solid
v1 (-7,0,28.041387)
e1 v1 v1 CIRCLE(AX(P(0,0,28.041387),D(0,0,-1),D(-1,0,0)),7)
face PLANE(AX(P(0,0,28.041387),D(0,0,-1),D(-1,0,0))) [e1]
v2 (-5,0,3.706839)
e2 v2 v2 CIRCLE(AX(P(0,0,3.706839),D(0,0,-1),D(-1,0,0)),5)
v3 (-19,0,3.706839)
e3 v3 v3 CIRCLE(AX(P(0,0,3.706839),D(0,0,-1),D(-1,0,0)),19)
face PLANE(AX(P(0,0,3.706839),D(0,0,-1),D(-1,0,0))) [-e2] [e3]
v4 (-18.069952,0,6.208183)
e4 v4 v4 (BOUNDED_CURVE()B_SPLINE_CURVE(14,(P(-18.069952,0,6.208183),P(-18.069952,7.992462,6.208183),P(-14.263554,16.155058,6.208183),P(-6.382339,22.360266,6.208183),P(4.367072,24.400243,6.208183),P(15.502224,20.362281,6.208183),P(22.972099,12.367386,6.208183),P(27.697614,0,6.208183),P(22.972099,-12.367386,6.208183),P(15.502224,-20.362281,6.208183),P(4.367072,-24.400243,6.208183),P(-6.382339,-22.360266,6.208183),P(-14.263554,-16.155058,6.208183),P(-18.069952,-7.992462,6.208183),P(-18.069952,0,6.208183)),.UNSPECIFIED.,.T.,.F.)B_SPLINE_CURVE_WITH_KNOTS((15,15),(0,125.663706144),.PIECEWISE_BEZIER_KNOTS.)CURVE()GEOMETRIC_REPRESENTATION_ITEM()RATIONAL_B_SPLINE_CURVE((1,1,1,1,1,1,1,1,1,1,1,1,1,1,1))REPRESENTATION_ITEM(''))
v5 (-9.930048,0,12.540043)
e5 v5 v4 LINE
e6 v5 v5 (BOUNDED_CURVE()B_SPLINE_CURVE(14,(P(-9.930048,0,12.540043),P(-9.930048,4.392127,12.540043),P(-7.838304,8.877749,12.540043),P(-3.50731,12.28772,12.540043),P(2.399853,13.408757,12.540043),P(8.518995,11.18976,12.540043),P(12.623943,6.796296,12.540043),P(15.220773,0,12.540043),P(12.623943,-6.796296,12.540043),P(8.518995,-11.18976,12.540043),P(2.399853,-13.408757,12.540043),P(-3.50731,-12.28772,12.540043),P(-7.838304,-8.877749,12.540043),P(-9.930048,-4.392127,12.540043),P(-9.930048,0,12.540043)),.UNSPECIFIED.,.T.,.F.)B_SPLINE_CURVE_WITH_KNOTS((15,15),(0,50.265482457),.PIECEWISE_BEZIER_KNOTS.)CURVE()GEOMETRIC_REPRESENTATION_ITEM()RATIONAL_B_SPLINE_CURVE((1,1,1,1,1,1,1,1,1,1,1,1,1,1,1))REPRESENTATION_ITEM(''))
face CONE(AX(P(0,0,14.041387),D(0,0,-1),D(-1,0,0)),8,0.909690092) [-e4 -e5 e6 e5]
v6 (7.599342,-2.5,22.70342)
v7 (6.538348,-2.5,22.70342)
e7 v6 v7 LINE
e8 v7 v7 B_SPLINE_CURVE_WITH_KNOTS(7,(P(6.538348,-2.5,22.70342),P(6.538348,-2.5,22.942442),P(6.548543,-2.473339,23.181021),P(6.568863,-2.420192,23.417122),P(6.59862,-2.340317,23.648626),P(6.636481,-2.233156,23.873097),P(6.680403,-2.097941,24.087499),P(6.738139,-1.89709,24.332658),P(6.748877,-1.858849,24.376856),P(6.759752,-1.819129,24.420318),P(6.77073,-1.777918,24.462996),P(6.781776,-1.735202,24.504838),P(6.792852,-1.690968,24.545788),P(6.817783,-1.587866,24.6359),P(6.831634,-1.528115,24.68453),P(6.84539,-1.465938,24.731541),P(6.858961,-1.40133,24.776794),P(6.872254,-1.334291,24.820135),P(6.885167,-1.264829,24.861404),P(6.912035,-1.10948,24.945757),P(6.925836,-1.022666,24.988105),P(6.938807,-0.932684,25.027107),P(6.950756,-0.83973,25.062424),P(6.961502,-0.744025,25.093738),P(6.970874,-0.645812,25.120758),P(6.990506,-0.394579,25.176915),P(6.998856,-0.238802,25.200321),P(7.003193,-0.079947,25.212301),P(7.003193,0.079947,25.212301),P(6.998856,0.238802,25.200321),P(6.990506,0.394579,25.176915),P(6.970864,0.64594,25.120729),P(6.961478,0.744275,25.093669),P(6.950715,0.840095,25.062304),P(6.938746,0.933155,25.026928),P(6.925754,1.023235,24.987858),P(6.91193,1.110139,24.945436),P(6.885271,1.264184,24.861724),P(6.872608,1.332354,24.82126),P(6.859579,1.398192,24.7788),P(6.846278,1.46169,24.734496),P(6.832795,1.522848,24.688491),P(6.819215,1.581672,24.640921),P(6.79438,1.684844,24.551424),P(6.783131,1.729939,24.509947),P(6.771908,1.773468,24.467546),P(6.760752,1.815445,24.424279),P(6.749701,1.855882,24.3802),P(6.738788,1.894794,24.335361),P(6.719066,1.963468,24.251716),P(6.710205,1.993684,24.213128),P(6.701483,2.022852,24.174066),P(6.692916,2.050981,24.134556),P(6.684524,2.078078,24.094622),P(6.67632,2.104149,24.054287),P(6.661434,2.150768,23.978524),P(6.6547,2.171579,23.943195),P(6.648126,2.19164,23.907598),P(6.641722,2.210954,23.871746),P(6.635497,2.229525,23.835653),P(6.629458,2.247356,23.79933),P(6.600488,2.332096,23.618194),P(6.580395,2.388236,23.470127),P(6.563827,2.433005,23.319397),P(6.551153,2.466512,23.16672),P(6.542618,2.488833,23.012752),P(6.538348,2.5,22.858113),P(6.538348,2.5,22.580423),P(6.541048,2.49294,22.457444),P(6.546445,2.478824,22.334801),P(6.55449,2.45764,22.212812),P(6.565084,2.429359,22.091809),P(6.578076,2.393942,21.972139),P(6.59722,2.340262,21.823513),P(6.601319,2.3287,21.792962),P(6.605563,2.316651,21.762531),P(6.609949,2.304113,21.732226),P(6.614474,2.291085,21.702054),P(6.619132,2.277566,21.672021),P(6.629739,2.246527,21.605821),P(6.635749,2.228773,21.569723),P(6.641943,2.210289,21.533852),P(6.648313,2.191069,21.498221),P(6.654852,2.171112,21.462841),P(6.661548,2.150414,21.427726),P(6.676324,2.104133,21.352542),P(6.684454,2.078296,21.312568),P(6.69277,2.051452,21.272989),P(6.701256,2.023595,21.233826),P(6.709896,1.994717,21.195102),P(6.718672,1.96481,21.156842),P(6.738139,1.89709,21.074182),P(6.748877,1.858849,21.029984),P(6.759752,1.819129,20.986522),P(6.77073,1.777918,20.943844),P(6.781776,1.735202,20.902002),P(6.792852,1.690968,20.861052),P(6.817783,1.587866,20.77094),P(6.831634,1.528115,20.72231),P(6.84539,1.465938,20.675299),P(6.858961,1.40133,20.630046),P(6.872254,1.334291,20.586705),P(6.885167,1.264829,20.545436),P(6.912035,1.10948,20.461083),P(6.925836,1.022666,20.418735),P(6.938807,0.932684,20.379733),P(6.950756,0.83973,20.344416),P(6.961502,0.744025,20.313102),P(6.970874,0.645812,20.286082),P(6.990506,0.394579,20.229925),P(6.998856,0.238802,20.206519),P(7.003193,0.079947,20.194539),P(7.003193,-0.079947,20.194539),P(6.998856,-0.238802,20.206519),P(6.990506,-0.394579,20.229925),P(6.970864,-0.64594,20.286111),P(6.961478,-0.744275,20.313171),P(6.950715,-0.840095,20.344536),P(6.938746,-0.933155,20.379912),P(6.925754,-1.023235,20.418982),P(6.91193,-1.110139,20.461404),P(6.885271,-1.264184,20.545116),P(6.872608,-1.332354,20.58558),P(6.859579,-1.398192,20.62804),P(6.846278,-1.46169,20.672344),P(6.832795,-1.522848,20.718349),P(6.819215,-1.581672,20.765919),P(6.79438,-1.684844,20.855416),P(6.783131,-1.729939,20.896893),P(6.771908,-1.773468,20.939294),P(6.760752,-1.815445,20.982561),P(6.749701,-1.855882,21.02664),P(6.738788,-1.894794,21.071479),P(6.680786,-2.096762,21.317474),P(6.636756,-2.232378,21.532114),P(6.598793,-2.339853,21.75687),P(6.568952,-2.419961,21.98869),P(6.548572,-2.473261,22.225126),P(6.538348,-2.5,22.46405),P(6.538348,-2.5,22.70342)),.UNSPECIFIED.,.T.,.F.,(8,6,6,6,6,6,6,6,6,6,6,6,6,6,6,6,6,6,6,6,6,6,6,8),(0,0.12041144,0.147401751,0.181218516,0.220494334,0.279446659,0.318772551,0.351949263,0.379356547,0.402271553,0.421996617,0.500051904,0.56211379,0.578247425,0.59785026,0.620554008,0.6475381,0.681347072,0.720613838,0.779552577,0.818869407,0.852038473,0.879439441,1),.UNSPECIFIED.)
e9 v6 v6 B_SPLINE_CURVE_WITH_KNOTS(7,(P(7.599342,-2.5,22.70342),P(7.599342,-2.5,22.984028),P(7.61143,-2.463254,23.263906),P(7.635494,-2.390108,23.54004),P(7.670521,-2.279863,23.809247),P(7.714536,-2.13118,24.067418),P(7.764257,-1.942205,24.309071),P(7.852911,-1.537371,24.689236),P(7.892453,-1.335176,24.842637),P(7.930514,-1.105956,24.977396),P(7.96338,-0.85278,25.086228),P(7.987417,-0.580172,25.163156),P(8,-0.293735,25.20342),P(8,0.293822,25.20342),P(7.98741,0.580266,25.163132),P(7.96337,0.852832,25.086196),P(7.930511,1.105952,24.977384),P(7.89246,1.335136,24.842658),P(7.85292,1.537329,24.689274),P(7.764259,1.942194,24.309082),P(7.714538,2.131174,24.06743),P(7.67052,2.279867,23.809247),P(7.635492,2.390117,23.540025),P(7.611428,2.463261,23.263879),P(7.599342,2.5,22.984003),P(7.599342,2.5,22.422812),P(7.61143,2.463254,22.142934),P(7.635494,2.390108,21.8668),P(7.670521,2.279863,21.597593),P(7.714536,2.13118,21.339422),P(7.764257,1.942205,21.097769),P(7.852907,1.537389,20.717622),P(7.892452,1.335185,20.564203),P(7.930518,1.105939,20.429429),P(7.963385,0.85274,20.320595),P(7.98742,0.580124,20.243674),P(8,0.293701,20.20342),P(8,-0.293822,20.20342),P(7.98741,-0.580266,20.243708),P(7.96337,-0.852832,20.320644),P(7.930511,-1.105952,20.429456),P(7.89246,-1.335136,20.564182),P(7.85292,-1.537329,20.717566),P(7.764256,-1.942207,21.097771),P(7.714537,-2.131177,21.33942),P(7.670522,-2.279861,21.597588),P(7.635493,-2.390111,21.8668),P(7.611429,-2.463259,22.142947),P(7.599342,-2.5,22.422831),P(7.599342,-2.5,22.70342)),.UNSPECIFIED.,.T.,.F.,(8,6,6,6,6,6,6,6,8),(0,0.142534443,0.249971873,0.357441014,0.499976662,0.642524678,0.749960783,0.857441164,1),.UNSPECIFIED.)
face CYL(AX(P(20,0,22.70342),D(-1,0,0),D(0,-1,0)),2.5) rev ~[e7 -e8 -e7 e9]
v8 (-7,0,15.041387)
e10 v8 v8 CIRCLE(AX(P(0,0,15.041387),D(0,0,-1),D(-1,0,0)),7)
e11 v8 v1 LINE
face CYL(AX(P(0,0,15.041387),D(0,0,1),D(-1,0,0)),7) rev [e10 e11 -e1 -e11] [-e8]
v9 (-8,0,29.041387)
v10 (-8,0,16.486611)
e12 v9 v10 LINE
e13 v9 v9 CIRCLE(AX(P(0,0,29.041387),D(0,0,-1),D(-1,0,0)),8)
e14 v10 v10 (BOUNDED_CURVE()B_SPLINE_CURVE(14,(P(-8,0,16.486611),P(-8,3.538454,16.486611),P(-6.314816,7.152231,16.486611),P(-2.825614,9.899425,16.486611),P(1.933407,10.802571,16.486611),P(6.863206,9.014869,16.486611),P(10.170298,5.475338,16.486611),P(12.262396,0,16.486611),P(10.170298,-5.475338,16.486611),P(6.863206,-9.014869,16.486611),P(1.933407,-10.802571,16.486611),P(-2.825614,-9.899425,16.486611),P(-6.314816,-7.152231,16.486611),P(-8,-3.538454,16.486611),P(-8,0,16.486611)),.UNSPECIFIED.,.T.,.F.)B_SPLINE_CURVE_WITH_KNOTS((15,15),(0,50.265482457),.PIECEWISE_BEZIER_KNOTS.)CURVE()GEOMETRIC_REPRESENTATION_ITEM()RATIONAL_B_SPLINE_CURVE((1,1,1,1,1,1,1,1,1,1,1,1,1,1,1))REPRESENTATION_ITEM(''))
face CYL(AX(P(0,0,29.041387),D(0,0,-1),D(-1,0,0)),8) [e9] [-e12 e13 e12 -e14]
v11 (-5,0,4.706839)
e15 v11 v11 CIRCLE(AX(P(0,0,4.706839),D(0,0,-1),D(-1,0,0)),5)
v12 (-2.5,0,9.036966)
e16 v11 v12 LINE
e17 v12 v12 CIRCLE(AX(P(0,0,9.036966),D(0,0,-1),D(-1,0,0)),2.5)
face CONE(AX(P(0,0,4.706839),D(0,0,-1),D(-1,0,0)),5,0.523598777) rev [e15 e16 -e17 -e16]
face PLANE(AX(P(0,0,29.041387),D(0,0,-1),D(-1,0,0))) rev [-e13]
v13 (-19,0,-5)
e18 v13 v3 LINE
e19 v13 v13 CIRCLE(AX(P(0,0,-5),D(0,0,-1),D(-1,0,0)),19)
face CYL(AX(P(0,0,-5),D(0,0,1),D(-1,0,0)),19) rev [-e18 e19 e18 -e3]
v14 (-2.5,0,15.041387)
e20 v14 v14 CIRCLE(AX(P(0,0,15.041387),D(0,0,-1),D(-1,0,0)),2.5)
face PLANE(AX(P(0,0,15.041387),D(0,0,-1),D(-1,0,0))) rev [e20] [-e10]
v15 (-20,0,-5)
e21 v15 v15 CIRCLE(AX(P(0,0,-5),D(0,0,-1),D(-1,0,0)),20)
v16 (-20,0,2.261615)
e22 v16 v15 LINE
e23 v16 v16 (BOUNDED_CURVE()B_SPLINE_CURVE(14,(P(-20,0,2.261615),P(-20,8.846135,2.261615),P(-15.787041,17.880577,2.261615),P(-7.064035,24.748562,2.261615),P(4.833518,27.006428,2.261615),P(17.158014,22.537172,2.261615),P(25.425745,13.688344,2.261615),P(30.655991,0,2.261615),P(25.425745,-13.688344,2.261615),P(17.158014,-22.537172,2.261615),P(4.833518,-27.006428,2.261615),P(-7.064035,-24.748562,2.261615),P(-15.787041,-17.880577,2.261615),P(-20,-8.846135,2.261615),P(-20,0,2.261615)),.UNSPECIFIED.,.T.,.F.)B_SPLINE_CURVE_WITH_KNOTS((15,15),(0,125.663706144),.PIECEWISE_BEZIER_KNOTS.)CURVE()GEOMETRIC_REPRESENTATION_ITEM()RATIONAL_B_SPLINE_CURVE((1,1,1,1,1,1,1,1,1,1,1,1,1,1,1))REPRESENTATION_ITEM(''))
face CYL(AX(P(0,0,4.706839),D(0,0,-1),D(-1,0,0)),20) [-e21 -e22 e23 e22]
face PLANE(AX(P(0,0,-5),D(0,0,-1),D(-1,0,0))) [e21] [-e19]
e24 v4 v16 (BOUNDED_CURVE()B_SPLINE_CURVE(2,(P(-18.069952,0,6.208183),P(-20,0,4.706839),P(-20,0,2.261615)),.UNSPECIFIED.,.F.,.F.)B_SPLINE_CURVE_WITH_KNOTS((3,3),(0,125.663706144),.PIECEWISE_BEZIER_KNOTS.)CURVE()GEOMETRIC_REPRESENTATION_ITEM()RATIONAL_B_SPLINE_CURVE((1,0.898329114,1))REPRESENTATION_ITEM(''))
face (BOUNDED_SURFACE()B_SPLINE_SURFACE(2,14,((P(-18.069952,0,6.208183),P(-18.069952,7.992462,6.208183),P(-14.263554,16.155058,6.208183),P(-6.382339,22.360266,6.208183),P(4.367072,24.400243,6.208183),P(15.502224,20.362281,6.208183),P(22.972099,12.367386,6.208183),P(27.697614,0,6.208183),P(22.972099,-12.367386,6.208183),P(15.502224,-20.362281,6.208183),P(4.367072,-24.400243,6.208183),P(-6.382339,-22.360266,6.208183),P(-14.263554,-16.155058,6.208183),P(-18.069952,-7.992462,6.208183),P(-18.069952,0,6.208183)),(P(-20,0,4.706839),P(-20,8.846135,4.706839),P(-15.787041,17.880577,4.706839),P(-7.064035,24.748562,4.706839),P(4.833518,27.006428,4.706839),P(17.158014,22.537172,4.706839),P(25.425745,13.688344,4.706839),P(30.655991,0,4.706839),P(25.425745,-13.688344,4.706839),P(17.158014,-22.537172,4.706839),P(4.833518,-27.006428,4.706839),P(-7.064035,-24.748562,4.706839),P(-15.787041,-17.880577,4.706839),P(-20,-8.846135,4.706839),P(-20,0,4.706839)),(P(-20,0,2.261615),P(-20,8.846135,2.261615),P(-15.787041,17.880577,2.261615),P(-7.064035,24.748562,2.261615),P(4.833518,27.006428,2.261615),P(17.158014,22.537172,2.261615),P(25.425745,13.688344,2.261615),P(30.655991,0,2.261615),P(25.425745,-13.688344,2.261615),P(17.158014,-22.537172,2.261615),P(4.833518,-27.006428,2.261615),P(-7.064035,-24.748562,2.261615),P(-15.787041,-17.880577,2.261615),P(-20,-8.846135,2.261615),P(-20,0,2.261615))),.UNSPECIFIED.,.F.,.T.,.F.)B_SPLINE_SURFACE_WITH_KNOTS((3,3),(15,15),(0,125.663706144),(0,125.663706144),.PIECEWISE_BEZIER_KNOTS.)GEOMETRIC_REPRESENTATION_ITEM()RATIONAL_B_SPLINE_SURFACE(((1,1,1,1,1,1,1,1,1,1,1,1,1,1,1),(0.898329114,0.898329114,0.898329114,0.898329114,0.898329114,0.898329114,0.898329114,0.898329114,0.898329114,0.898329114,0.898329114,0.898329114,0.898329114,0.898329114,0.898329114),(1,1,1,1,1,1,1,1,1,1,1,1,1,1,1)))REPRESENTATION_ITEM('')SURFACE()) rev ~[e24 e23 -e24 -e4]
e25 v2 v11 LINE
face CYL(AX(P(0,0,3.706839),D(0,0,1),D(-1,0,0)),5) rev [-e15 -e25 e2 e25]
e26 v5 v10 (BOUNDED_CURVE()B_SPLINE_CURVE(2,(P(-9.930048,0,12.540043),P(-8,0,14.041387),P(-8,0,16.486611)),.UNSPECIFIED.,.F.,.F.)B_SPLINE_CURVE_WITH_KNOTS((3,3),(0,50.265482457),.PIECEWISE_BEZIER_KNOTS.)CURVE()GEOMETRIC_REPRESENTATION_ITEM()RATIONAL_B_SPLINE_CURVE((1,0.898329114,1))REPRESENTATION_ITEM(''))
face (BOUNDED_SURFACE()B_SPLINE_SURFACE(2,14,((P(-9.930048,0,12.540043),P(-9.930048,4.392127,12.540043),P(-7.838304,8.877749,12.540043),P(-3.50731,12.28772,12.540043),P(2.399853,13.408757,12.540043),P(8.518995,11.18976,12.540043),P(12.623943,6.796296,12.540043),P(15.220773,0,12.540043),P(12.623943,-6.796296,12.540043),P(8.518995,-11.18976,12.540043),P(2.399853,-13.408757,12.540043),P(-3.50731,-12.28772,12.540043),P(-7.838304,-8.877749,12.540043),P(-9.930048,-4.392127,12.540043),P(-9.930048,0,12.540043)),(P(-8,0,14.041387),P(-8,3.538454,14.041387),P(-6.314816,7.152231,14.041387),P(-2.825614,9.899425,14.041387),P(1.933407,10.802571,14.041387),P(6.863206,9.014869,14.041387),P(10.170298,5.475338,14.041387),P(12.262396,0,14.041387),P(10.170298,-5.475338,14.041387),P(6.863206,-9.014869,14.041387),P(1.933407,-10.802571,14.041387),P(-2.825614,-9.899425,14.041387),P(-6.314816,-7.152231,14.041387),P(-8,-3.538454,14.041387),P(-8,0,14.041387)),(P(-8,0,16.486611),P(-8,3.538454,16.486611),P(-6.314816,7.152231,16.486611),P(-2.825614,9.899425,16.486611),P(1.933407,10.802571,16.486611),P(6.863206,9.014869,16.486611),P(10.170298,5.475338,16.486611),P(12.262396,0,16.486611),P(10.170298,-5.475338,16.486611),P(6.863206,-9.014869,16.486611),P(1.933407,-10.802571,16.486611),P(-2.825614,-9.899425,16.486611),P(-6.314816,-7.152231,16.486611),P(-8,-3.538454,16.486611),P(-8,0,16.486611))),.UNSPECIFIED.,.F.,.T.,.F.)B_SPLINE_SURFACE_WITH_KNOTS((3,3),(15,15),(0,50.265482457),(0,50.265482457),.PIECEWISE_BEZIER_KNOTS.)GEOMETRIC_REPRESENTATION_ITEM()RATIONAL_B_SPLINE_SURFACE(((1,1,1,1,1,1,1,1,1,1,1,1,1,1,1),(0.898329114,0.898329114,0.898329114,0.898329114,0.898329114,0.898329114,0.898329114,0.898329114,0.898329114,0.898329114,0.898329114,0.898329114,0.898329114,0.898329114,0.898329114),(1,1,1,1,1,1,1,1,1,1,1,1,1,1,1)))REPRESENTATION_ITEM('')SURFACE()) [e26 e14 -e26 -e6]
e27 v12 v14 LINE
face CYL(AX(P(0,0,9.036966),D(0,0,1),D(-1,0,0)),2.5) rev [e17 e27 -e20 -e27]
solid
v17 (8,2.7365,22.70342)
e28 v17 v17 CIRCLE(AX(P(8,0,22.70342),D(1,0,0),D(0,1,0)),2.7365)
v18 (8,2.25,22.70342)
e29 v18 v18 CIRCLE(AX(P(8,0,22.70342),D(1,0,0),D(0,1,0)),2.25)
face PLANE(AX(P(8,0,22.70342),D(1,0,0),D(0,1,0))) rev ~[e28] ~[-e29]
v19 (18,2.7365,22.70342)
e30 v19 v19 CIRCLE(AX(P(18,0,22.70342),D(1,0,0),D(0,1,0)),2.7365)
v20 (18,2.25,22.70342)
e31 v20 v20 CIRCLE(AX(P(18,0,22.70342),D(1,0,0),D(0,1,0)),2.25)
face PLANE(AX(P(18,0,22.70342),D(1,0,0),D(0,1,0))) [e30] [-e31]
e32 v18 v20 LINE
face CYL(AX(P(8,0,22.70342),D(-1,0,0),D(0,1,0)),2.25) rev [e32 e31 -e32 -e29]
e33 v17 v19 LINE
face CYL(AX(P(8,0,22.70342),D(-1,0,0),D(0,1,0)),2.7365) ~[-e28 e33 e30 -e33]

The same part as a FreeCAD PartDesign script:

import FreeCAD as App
import Part
import Sketcher
from FreeCAD import Vector
Q = App.Units.Quantity


def edges_at(feature, points):
    """Names of the edges that pass closest to the given points."""
    edges = feature.Shape.Edges
    near = lambda p: min(range(len(edges)), key=lambda i: edges[i].distToShape(Part.Vertex(*p))[0])
    return sorted({f"Edge{near(p) + 1}" for p in points})

doc = App.newDocument("Part")
body = doc.addObject("PartDesign::Body", "Body")

sketch1 = body.newObject("Sketcher::SketchObject", "Sketch")
sketch1.AttachmentSupport = (doc.getObject("XZ_Plane"), [""])
sketch1.MapMode = "FlatFace"
sketch1.addGeometry(Part.LineSegment(Vector(-8, 14, 0), Vector(-20, 4.7, 0)), False)
sketch1.addGeometry(Part.LineSegment(Vector(-20, 4.7, 0), Vector(-20, -5, 0)), False)
sketch1.addGeometry(Part.LineSegment(Vector(-20, -5, 0), Vector(-19, -5, 0)), False)
sketch1.addGeometry(Part.LineSegment(Vector(-19, -5, 0), Vector(-19, 3.7, 0)), False)
sketch1.addGeometry(Part.LineSegment(Vector(-19, 3.7, 0), Vector(-5, 3.7, 0)), False)
sketch1.addGeometry(Part.LineSegment(Vector(-5, 3.7, 0), Vector(-5, 4.7, 0)), False)
sketch1.addGeometry(Part.LineSegment(Vector(-5, 4.7, 0), Vector(-2.5, 9, 0)), False)
sketch1.addGeometry(Part.LineSegment(Vector(-2.5, 9, 0), Vector(-2.5, 15, 0)), False)
sketch1.addGeometry(Part.LineSegment(Vector(-2.5, 15, 0), Vector(-7, 15, 0)), False)
sketch1.addGeometry(Part.LineSegment(Vector(-7, 15, 0), Vector(-7, 28, 0)), False)
sketch1.addGeometry(Part.LineSegment(Vector(-7, 28, 0), Vector(0, 28, 0)), False)
sketch1.addGeometry(Part.LineSegment(Vector(0, 28, 0), Vector(0, 29, 0)), False)
sketch1.addGeometry(Part.LineSegment(Vector(0, 29, 0), Vector(-8, 29, 0)), False)
sketch1.addGeometry(Part.LineSegment(Vector(-8, 29, 0), Vector(-8, 14, 0)), False)
sketch1.addConstraint(Sketcher.Constraint("Coincident", 0, 2, 1, 1))
sketch1.addConstraint(Sketcher.Constraint("Coincident", 1, 2, 2, 1))
sketch1.addConstraint(Sketcher.Constraint("Coincident", 2, 2, 3, 1))
sketch1.addConstraint(Sketcher.Constraint("Coincident", 3, 2, 4, 1))
sketch1.addConstraint(Sketcher.Constraint("Coincident", 4, 2, 5, 1))
sketch1.addConstraint(Sketcher.Constraint("Coincident", 5, 2, 6, 1))
sketch1.addConstraint(Sketcher.Constraint("Coincident", 6, 2, 7, 1))
sketch1.addConstraint(Sketcher.Constraint("Coincident", 7, 2, 8, 1))
sketch1.addConstraint(Sketcher.Constraint("Coincident", 8, 2, 9, 1))
sketch1.addConstraint(Sketcher.Constraint("Coincident", 9, 2, 10, 1))
sketch1.addConstraint(Sketcher.Constraint("Coincident", 10, 2, 11, 1))
sketch1.addConstraint(Sketcher.Constraint("Coincident", 11, 2, 12, 1))
sketch1.addConstraint(Sketcher.Constraint("Coincident", 12, 2, 13, 1))
sketch1.addConstraint(Sketcher.Constraint("Coincident", 13, 2, 0, 1))
sketch1.addConstraint(Sketcher.Constraint("Vertical", 1))
sketch1.addConstraint(Sketcher.Constraint("Horizontal", 2))
sketch1.addConstraint(Sketcher.Constraint("Vertical", 3))
sketch1.addConstraint(Sketcher.Constraint("Horizontal", 4))
sketch1.addConstraint(Sketcher.Constraint("Vertical", 5))
sketch1.addConstraint(Sketcher.Constraint("Vertical", 7))
sketch1.addConstraint(Sketcher.Constraint("Horizontal", 8))
sketch1.addConstraint(Sketcher.Constraint("Vertical", 9))
sketch1.addConstraint(Sketcher.Constraint("Horizontal", 10))
sketch1.addConstraint(Sketcher.Constraint("Vertical", 11))
sketch1.addConstraint(Sketcher.Constraint("Horizontal", 12))
sketch1.addConstraint(Sketcher.Constraint("Vertical", 13))
sketch1.addConstraint(Sketcher.Constraint("PointOnObject", 10, 2, -2))
sketch1.addConstraint(Sketcher.Constraint("Horizontal", 0, 2, 5, 2))
sketch1.addConstraint(Sketcher.Constraint("Equal", 2, 5))
sketch1.addConstraint(Sketcher.Constraint("Equal", 5, 11))
sketch1.addConstraint(Sketcher.Constraint("DistanceX", 2, 1, 2, 2, 1.0))
sketch1.addConstraint(Sketcher.Constraint("DistanceX", 4, 1, 4, 2, 14.0))
sketch1.addConstraint(Sketcher.Constraint("DistanceX", 10, 1, 10, 2, 7.0))
sketch1.addConstraint(Sketcher.Constraint("DistanceX", 12, 2, 12, 1, 8.0))
sketch1.addConstraint(Sketcher.Constraint("DistanceY", 9, 1, 9, 2, 13.0))
sketch1.addConstraint(Sketcher.Constraint("DistanceY", 13, 2, 13, 1, 15.0))
sketch1.addConstraint(Sketcher.Constraint("Angle", 6, Q("60 deg")))
sketch1.addConstraint(Sketcher.Constraint("Distance", 6, 5.0))
sketch1.addConstraint(Sketcher.Constraint("DistanceX", 8, 2, 8, 1, 4.5))
sketch1.addConstraint(Sketcher.Constraint("DistanceY", 1, 2, -1, 1, 5.0))
sketch1.addConstraint(Sketcher.Constraint("DistanceY", 1, 2, 1, 1, 9.706839))
sketch1.addConstraint(Sketcher.Constraint("DistanceY", 7, 1, 7, 2, 6.004421))
revolution = body.newObject("PartDesign::Revolution", "Revolution")
revolution.Profile = sketch1
revolution.ReferenceAxis = (sketch1, ["V_Axis"])
revolution.Angle = 360
doc.recompute()

fillet = body.newObject("PartDesign::Fillet", "Fillet")
fillet.Base = (revolution, edges_at(revolution, [(8, 0, 14.041)]))
fillet.Radius = 5

sketch2 = body.newObject("Sketcher::SketchObject", "Sketch001")
sketch2.AttachmentSupport = (doc.getObject("YZ_Plane"), [""])
sketch2.MapMode = "FlatFace"
sketch2.AttachmentOffset = App.Placement(Vector(0, 0, 8), App.Rotation())
sketch2.addGeometry(Part.Circle(Vector(0, 22.7, 0), Vector(0, 0, 1), 2.5), False)
sketch2.addConstraint(Sketcher.Constraint("PointOnObject", 0, 3, -2))
sketch2.addConstraint(Sketcher.Constraint("Diameter", 0, 5.0))
sketch2.addConstraint(Sketcher.Constraint("DistanceY", -1, 1, 0, 3, 22.70342))
doc.recompute()
hole = body.newObject("PartDesign::Hole", "Hole")
hole.Profile = sketch2
hole.ThreadType = "None"
hole.Diameter = 5
hole.DepthType = "Dimension"
hole.Depth = 12
hole.DrillPoint = "Flat"
doc.recompute()

fillet2 = body.newObject("PartDesign::Fillet", "Fillet001")
fillet2.Base = (hole, edges_at(hole, [(20, 0, 4.707)]))
fillet2.Radius = 5
body2 = doc.addObject("PartDesign::Body", "Body001")

sketch3 = body2.newObject("Sketcher::SketchObject", "Sketch002")
sketch3.AttachmentSupport = (doc.getObject("YZ_Plane001"), [""])
sketch3.MapMode = "FlatFace"
sketch3.AttachmentOffset = App.Placement(Vector(0, 0, 8), App.Rotation())
sketch3.addGeometry(Part.Circle(Vector(0, 22.7, 0), Vector(0, 0, 1), 2.7), False)
sketch3.addGeometry(Part.Circle(Vector(0, 22.7, 0), Vector(0, 0, 1), 2.2), False)
sketch3.addConstraint(Sketcher.Constraint("Coincident", 1, 3, 0, 3))
sketch3.addConstraint(Sketcher.Constraint("PointOnObject", 0, 3, -2))
sketch3.addConstraint(Sketcher.Constraint("Diameter", 1, 4.5))
sketch3.addConstraint(Sketcher.Constraint("Diameter", 0, 5.473))
sketch3.addConstraint(Sketcher.Constraint("DistanceY", -1, 1, 0, 3, 22.70342))
pad1 = body2.newObject("PartDesign::Pad", "Pad")
pad1.Profile = sketch3
pad1.Length = 10

doc.recompute()
